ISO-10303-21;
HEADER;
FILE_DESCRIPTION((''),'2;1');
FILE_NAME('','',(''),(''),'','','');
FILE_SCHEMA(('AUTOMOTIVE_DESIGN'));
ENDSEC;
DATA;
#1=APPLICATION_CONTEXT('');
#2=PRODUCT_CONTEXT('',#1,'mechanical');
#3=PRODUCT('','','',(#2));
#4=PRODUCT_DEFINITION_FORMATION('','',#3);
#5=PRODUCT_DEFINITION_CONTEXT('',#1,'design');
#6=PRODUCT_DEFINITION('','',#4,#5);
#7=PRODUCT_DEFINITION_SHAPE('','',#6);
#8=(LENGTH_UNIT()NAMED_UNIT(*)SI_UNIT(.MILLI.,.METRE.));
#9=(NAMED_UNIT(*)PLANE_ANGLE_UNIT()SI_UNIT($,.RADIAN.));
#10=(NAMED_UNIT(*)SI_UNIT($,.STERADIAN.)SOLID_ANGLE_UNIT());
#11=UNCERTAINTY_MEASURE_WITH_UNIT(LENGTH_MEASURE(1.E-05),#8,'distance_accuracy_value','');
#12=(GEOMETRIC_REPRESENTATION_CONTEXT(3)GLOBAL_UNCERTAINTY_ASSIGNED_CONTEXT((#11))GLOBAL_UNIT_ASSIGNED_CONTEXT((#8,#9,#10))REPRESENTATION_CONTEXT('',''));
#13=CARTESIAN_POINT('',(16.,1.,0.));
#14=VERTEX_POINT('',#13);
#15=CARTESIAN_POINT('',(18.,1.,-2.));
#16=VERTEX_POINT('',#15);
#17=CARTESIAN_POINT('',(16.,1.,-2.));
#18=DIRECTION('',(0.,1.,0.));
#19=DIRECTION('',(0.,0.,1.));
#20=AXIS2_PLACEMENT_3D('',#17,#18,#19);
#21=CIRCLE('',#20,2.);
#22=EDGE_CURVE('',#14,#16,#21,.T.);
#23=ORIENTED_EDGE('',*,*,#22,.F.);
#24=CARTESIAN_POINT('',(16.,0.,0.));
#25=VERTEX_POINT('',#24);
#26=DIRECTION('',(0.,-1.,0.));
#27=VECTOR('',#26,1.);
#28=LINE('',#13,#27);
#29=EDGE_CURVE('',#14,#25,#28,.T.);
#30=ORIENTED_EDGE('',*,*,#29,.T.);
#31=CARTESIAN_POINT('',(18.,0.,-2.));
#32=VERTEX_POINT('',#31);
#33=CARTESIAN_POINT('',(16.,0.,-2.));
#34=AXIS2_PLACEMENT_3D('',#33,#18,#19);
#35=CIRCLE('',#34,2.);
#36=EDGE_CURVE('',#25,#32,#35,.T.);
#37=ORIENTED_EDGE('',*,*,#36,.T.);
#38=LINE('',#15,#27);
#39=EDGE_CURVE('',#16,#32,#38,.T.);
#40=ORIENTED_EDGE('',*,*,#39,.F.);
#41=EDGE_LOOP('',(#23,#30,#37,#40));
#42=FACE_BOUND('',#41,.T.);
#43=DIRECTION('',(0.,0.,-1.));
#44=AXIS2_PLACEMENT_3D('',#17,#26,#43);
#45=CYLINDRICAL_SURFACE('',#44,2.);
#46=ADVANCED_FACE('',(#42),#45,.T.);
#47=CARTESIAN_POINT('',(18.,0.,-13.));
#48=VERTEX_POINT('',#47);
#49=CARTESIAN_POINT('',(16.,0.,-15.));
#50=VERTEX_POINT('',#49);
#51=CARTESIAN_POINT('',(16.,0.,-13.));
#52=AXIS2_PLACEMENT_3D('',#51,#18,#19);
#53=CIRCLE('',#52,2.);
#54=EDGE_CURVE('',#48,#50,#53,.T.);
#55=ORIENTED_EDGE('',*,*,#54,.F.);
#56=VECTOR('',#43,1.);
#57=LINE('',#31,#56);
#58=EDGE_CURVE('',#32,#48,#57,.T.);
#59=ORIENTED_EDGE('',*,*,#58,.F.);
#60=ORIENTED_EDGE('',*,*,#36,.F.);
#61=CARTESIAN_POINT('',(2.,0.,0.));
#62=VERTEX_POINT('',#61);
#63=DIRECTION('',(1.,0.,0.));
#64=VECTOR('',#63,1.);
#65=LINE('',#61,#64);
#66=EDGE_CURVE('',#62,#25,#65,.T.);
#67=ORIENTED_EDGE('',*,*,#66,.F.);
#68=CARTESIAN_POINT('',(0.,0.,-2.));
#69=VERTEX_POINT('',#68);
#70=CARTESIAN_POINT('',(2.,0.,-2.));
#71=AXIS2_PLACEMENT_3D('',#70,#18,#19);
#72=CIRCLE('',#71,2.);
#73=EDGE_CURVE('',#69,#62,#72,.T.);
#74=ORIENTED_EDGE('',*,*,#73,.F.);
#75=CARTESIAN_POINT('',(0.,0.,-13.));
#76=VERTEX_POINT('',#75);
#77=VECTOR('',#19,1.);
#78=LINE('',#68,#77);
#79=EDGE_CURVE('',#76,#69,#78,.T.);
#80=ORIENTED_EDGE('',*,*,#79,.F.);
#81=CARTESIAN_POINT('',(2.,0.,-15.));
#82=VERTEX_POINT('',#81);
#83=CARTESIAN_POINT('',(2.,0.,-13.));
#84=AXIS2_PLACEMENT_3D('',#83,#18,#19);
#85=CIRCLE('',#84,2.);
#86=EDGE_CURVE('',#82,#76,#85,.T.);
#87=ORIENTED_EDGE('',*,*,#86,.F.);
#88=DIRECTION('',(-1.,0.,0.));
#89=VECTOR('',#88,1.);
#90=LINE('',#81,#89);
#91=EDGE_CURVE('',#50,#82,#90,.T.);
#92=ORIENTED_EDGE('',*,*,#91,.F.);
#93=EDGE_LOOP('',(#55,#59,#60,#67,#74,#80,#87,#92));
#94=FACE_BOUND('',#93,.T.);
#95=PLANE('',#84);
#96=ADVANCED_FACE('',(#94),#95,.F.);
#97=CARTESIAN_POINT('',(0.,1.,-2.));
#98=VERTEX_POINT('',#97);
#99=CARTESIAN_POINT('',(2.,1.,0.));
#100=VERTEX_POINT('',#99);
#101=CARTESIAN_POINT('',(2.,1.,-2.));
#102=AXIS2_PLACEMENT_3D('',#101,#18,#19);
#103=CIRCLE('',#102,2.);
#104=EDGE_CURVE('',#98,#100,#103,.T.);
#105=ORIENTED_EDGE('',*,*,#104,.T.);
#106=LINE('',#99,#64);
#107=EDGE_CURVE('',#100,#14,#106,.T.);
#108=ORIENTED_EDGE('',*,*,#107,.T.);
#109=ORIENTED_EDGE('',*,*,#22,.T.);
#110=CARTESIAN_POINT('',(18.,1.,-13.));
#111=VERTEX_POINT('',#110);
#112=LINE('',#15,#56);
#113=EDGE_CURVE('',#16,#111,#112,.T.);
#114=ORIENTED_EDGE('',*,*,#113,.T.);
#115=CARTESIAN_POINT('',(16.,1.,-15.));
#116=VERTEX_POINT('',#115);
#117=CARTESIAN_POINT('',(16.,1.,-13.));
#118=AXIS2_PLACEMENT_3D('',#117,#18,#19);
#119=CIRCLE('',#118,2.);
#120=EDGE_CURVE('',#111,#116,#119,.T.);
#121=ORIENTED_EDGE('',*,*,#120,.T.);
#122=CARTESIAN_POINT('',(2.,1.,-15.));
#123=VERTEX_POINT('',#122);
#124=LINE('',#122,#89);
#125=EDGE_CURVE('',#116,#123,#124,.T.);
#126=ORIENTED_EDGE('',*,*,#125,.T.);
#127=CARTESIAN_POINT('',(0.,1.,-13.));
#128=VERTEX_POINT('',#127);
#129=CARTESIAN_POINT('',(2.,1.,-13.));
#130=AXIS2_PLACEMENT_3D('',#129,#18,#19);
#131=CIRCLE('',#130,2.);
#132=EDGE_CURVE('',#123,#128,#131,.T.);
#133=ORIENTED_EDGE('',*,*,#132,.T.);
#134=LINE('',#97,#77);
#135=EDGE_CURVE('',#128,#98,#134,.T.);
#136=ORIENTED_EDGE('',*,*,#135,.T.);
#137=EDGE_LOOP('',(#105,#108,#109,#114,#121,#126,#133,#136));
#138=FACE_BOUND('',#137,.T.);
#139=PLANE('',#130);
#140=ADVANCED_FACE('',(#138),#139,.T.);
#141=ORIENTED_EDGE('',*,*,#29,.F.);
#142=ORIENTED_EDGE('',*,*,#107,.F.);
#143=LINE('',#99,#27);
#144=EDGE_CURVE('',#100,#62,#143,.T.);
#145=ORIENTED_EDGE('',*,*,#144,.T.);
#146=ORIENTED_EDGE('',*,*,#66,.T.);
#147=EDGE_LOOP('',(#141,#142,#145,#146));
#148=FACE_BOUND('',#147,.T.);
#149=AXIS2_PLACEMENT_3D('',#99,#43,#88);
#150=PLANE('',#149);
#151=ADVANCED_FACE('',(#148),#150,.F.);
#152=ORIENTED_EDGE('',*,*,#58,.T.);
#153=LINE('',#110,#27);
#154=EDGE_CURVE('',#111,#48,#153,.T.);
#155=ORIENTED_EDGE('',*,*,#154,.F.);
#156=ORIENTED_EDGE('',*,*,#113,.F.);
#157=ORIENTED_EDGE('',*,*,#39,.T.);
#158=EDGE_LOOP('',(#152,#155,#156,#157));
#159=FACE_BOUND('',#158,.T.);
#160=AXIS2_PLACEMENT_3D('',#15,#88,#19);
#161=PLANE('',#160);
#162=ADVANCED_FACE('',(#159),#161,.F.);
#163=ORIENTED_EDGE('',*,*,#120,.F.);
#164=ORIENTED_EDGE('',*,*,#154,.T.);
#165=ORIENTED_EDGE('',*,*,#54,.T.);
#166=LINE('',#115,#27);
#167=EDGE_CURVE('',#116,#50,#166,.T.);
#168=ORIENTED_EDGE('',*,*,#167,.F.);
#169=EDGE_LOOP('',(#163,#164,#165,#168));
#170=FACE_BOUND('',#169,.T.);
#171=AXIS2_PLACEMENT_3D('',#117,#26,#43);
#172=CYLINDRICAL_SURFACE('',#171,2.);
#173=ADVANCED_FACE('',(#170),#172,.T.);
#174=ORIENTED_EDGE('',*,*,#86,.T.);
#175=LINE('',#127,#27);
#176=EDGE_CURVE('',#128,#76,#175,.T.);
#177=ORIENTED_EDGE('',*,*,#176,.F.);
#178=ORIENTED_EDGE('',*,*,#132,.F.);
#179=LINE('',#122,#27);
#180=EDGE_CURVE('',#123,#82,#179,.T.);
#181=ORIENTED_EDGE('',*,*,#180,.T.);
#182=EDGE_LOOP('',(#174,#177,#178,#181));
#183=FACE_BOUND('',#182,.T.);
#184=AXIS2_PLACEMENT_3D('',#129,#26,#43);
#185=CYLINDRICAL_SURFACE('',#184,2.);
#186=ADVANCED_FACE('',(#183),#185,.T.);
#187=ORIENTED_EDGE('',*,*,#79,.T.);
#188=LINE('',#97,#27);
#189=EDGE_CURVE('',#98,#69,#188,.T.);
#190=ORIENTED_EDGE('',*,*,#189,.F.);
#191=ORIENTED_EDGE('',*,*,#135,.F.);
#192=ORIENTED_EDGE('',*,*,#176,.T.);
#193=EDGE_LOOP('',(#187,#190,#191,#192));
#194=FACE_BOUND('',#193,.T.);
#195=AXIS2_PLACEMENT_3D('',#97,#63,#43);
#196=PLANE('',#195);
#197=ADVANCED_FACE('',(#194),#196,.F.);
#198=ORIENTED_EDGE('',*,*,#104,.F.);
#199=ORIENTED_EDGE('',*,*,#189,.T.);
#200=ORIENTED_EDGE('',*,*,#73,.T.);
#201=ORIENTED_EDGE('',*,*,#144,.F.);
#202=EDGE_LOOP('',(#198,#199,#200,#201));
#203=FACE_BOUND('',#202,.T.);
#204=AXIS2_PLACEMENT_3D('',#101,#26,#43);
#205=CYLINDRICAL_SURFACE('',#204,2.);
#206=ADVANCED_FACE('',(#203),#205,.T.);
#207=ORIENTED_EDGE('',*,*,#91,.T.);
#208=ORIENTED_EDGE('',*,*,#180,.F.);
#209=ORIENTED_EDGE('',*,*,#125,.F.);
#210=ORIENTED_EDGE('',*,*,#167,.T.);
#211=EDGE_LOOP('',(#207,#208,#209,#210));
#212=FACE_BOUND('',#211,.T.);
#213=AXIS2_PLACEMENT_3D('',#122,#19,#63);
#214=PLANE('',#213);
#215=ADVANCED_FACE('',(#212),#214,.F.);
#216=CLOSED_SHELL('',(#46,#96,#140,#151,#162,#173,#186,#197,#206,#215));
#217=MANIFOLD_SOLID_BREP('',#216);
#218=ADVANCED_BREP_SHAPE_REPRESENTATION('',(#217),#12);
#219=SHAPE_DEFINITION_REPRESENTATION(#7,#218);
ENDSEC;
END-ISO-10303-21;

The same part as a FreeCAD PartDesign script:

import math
import FreeCAD as App
import Part
import Sketcher
from FreeCAD import Vector
Q = App.Units.Quantity

doc = App.newDocument("Part")
body = doc.addObject("PartDesign::Body", "Body")

# Sketch on XZ plane
sketch1 = body.newObject("Sketcher::SketchObject", "Sketch")
sketch1.AttachmentSupport = (doc.getObject("XZ_Plane"), [""])
sketch1.MapMode = "FlatFace"
sketch1.addGeometry([
    Part.LineSegment(Vector(2, 0, 0), Vector(16, 0, 0)),  # 0
    Part.ArcOfCircle(Part.Circle(Vector(16, -2, 0), Vector(0, 0, 1), 2), math.radians(0), math.radians(90)),  # 1
    Part.LineSegment(Vector(18, -2, 0), Vector(18, -13, 0)),  # 2
    Part.ArcOfCircle(Part.Circle(Vector(16, -13, 0), Vector(0, 0, 1), 2), math.radians(-90), math.radians(0)),  # 3
    Part.LineSegment(Vector(16, -15, 0), Vector(2, -15, 0)),  # 4
    Part.ArcOfCircle(Part.Circle(Vector(2, -13, 0), Vector(0, 0, 1), 2), math.radians(-180), math.radians(-90)),  # 5
    Part.LineSegment(Vector(0, -13, 0), Vector(0, -2, 0)),  # 6
    Part.ArcOfCircle(Part.Circle(Vector(2, -2, 0), Vector(0, 0, 1), 2), math.radians(90), math.radians(180)),  # 7
], False)
sketch1.addConstraint([
    Sketcher.Constraint("Tangent", 0, 2, 1, 2),
    Sketcher.Constraint("Tangent", 1, 1, 2, 1),
    Sketcher.Constraint("Tangent", 2, 2, 3, 2),
    Sketcher.Constraint("Tangent", 3, 1, 4, 1),
    Sketcher.Constraint("Tangent", 4, 2, 5, 2),
    Sketcher.Constraint("Tangent", 5, 1, 6, 1),
    Sketcher.Constraint("Tangent", 6, 2, 7, 2),
    Sketcher.Constraint("Tangent", 7, 1, 0, 1),
    Sketcher.Constraint("Horizontal", 0),
    Sketcher.Constraint("Vertical", 2),
    Sketcher.Constraint("Horizontal", 4),
    Sketcher.Constraint("Vertical", 6),
    Sketcher.Constraint("Equal", 1, 3),
    Sketcher.Constraint("Equal", 3, 5),
    Sketcher.Constraint("Equal", 5, 7),
    Sketcher.Constraint("PointOnObject", 0, 2, -1),
    Sketcher.Constraint("PointOnObject", 5, 1, -2),
    Sketcher.Constraint("Radius", 1, Q("2 mm")),
    Sketcher.Constraint("DistanceX", 0, 1, 0, 2, Q("14 mm")),
    Sketcher.Constraint("DistanceY", 2, 2, 2, 1, Q("11 mm")),
])
pad1 = body.newObject("PartDesign::Pad", "Pad")
pad1.Profile = sketch1
pad1.Length = 1
pad1.Reversed = True

doc.recompute()
